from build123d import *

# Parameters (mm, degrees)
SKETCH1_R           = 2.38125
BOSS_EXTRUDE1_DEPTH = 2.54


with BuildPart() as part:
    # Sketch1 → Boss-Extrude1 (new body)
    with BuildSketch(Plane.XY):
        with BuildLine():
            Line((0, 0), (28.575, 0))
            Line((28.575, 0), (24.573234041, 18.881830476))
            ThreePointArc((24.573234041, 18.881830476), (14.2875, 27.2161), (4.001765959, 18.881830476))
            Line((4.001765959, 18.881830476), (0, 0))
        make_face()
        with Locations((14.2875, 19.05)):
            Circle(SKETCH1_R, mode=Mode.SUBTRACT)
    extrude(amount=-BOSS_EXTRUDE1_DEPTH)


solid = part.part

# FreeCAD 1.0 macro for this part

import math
import FreeCAD as App
import Part
import Sketcher
Q = App.Units.Quantity

doc = App.newDocument("Part")
body = doc.addObject("PartDesign::Body", "Body")

# Sketch on XY plane
sketch1 = body.newObject("Sketcher::SketchObject", "Sketch")
sketch1.AttachmentSupport = (doc.getObject("XY_Plane"), [""])
sketch1.MapMode = "FlatFace"
sketch1.addGeometry([
    Part.LineSegment(App.Vector(0, 0, 0), App.Vector(28.6, 0, 0)),  # 0
    Part.LineSegment(App.Vector(28.6, 0, 0), App.Vector(24.6, 18.9, 0)),  # 1
    Part.ArcOfCircle(Part.Circle(App.Vector(14.3, 16.7, 0), App.Vector(0, 0, 1), 10.5), math.radians(12), math.radians(168)),  # 2
    Part.LineSegment(App.Vector(4, 18.9, 0), App.Vector(0, 0, 0)),  # 3
    Part.Circle(App.Vector(14.3, 19.1, 0), App.Vector(0, 0, 1), 2.4),  # 4
], False)
sketch1.addConstraint([
    Sketcher.Constraint("Coincident", 0, 2, 1, 1),
    Sketcher.Constraint("Tangent", 1, 2, 2, 1),
    Sketcher.Constraint("Tangent", 2, 2, 3, 1),
    Sketcher.Constraint("Coincident", 3, 2, 0, 1),
    Sketcher.Constraint("Horizontal", 0),
    Sketcher.Constraint("Coincident", 3, 2, -1, 1),
    Sketcher.Constraint("Horizontal", 1, 2, 2, 2),
    Sketcher.Constraint("Vertical", 2, 3, 4, 3),
    Sketcher.Constraint("Diameter", 4, Q("0.1875 in")),
    Sketcher.Constraint("DistanceX", 0, 1, 0, 2, Q("1.125 in")),
    Sketcher.Constraint("DistanceY", -1, 1, 4, 3, Q("0.75 in")),
    Sketcher.Constraint("Radius", 2, Q("10.514201 mm")),
    Sketcher.Constraint("DistanceY", -1, 1, 2, 3, Q("16.701899 mm")),
])
pad1 = body.newObject("PartDesign::Pad", "Pad")
pad1.Profile = sketch1
pad1.Length = Q("0.1 in")
pad1.Reversed = True

doc.recompute()
